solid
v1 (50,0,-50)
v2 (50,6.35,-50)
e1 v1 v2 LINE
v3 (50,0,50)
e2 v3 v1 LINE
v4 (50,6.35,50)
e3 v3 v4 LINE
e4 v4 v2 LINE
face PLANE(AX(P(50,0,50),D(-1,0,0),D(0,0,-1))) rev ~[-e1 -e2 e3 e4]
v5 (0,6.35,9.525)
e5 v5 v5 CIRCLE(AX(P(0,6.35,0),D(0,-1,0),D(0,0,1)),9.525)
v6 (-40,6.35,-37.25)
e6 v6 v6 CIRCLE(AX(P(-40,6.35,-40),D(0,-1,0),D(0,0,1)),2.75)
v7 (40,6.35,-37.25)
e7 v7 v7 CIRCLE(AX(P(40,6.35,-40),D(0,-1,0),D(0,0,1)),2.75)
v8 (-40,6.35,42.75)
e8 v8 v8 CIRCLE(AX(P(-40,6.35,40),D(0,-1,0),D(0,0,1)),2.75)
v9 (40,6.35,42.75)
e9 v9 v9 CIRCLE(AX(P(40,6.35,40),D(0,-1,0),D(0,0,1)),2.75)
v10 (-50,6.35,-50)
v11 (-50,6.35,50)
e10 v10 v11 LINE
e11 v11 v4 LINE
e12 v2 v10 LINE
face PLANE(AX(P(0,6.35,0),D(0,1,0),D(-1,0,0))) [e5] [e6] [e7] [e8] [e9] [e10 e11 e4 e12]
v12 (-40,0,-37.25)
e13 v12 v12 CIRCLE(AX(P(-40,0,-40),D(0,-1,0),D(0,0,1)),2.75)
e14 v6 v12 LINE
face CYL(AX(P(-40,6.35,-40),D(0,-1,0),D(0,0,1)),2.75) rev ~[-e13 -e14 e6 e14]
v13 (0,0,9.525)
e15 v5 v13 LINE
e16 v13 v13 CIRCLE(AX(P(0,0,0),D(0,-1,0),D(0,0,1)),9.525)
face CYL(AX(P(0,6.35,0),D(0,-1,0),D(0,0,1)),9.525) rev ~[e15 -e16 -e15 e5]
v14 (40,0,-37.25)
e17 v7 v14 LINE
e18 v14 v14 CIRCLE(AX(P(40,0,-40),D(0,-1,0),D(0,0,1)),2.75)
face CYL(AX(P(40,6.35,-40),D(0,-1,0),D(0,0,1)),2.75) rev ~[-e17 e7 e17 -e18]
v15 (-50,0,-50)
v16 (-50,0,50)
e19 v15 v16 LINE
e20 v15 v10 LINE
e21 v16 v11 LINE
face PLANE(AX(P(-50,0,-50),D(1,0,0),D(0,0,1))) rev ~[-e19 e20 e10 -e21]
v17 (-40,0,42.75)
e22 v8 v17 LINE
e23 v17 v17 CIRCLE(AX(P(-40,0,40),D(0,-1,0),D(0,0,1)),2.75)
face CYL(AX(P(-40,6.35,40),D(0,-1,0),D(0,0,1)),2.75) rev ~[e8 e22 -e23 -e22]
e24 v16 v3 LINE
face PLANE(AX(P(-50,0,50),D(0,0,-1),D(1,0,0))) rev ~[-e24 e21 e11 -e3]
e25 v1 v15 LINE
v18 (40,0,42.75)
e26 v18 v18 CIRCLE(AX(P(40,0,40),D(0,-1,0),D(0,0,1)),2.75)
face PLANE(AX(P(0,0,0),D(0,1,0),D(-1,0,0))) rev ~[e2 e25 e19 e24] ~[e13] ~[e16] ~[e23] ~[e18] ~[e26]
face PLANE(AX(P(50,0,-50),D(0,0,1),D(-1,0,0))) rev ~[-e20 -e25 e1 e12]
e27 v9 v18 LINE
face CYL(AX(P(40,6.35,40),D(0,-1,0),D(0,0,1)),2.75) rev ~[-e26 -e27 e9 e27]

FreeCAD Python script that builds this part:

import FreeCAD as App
import Part
import Sketcher
Q = App.Units.Quantity

doc = App.newDocument("Part")
body = doc.addObject("PartDesign::Body", "Body")

# Sketch on XZ plane
sketch1 = body.newObject("Sketcher::SketchObject", "Sketch")
sketch1.AttachmentSupport = (doc.getObject("XZ_Plane"), [""])
sketch1.MapMode = "FlatFace"
sketch1.addGeometry([
    Part.LineSegment(App.Vector(-50, -50, 0), App.Vector(-50, 50, 0)),
    Part.LineSegment(App.Vector(-50, 50, 0), App.Vector(50, 50, 0)),
    Part.LineSegment(App.Vector(50, 50, 0), App.Vector(50, -50, 0)),
    Part.LineSegment(App.Vector(50, -50, 0), App.Vector(-50, -50, 0)),
], False)
sketch1.addConstraint([
    Sketcher.Constraint("Coincident", 0, 2, 1, 1),
    Sketcher.Constraint("Coincident", 1, 2, 2, 1),
    Sketcher.Constraint("Coincident", 2, 2, 3, 1),
    Sketcher.Constraint("Coincident", 3, 2, 0, 1),
    Sketcher.Constraint("Vertical", 0),
    Sketcher.Constraint("Horizontal", 1),
    Sketcher.Constraint("Vertical", 2),
    Sketcher.Constraint("Horizontal", 3),
    Sketcher.Constraint("Symmetric", 0, 2, 2, 2, -1, 1),
    Sketcher.Constraint("Equal", 3, 0),
    Sketcher.Constraint("DistanceX", 1, 1, 1, 2, Q("3.937 in")),
])
pad1 = body.newObject("PartDesign::Pad", "Pad")
pad1.Profile = sketch1
pad1.Length = Q("0.25 in")
pad1.Reversed = True

# Sketch on XZ plane
sketch2 = body.newObject("Sketcher::SketchObject", "Sketch001")
sketch2.AttachmentSupport = (doc.getObject("XZ_Plane"), [""])
sketch2.MapMode = "FlatFace"
sketch2.AttachmentOffset = App.Placement(App.Vector(0, 0, -0.25 * 25.4), App.Rotation())
sketch2.addGeometry([
    Part.Circle(App.Vector(-40, 40, 0), App.Vector(0, 0, 1), 2.75),
    Part.Circle(App.Vector(-40, -40, 0), App.Vector(0, 0, 1), 2.75),
    Part.Circle(App.Vector(40, -40, 0), App.Vector(0, 0, 1), 2.75),
    Part.Circle(App.Vector(40, 40, 0), App.Vector(0, 0, 1), 2.75),
], False)
sketch2.addConstraint([
    Sketcher.Constraint("Equal", 0, 1),
    Sketcher.Constraint("Equal", 1, 2),
    Sketcher.Constraint("Equal", 2, 3),
    Sketcher.Constraint("Symmetric", 0, 3, 2, 3, -1, 1),
    Sketcher.Constraint("Symmetric", 1, 3, 3, 3, -1, 1),
    Sketcher.Constraint("Symmetric", 1, 3, 2, 3, -2),
    Sketcher.Constraint("Diameter", 0, Q("5.5 mm")),
    Sketcher.Constraint("DistanceX", 0, 3, -1, 1, Q("1.5748 in")),
    Sketcher.Constraint("DistanceY", -1, 1, 0, 3, Q("1.5748 in")),
])
doc.recompute()
hole = body.newObject("PartDesign::Hole", "Hole")
hole.Profile = sketch2
hole.ThreadType = "None"
hole.Diameter = 5.5
hole.DepthType = "Dimension"
hole.Depth = 8
hole.DrillPoint = "Angled"
hole.DrillPointAngle = 118
hole.Reversed = True

# Sketch on XZ plane
sketch3 = body.newObject("Sketcher::SketchObject", "Sketch002")
sketch3.AttachmentSupport = (doc.getObject("XZ_Plane"), [""])
sketch3.MapMode = "FlatFace"
sketch3.AttachmentOffset = App.Placement(App.Vector(0, 0, -0.25 * 25.4), App.Rotation())
sketch3.addGeometry(Part.Circle(App.Vector(0, 0, 0), App.Vector(0, 0, 1), 9.525), False)
sketch3.addConstraint([
    Sketcher.Constraint("Coincident", 0, 3, -1, 1),
    Sketcher.Constraint("Diameter", 0, Q("0.75 in")),
])
doc.recompute()
hole2 = body.newObject("PartDesign::Hole", "Hole001")
hole2.Profile = sketch3
hole2.ThreadType = "None"
hole2.Diameter = Q("0.75 in")
hole2.DepthType = "ThroughAll"
hole2.Reversed = True

doc.recompute()
